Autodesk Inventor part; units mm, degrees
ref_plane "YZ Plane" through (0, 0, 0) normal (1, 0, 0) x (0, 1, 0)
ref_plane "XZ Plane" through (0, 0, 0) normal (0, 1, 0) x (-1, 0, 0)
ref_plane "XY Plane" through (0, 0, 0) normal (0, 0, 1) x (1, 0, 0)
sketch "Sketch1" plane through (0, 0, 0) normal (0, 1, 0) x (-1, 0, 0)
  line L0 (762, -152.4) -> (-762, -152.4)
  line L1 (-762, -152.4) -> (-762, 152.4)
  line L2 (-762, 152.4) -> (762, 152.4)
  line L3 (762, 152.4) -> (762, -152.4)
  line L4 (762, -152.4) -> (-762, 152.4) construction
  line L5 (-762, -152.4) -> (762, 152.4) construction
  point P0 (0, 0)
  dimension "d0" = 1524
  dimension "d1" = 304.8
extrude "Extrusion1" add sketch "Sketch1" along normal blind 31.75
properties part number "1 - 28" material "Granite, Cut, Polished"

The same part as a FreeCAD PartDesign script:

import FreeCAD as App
import Part
import Sketcher
Q = App.Units.Quantity

doc = App.newDocument("Part")
body = doc.addObject("PartDesign::Body", "Body")

# Sketch on XZ plane
sketch1 = doc.addObject("Sketcher::SketchObject", "Sketch")
body.addObject(sketch1)
sketch1.AttachmentSupport = (doc.XZ_Plane, [""])
sketch1.MapMode = "FlatFace"
sketch1.addGeometry([
    Part.LineSegment(App.Vector(762, -152, 0), App.Vector(-762, -152, 0)),
    Part.LineSegment(App.Vector(-762, -152, 0), App.Vector(-762, 152, 0)),
    Part.LineSegment(App.Vector(-762, 152, 0), App.Vector(762, 152, 0)),
    Part.LineSegment(App.Vector(762, 152, 0), App.Vector(762, -152, 0)),
], False)
sketch1.addConstraint([
    Sketcher.Constraint("Coincident", 0, 2, 1, 1),
    Sketcher.Constraint("Coincident", 1, 2, 2, 1),
    Sketcher.Constraint("Coincident", 2, 2, 3, 1),
    Sketcher.Constraint("Coincident", 3, 2, 0, 1),
    Sketcher.Constraint("Horizontal", 0),
    Sketcher.Constraint("Vertical", 1),
    Sketcher.Constraint("Horizontal", 2),
    Sketcher.Constraint("Vertical", 3),
    Sketcher.Constraint("Symmetric", 0, 2, 2, 2, -1, 1),
    Sketcher.Constraint("DistanceX", 0, 2, 0, 1, Q("60 in")),
    Sketcher.Constraint("DistanceY", 1, 1, 1, 2, Q("12 in")),
])
pad1 = doc.addObject("PartDesign::Pad", "Pad")
body.addObject(pad1)
pad1.Profile = sketch1
pad1.Length = Q("1.25 in")
pad1.Reversed = True

doc.recompute()
